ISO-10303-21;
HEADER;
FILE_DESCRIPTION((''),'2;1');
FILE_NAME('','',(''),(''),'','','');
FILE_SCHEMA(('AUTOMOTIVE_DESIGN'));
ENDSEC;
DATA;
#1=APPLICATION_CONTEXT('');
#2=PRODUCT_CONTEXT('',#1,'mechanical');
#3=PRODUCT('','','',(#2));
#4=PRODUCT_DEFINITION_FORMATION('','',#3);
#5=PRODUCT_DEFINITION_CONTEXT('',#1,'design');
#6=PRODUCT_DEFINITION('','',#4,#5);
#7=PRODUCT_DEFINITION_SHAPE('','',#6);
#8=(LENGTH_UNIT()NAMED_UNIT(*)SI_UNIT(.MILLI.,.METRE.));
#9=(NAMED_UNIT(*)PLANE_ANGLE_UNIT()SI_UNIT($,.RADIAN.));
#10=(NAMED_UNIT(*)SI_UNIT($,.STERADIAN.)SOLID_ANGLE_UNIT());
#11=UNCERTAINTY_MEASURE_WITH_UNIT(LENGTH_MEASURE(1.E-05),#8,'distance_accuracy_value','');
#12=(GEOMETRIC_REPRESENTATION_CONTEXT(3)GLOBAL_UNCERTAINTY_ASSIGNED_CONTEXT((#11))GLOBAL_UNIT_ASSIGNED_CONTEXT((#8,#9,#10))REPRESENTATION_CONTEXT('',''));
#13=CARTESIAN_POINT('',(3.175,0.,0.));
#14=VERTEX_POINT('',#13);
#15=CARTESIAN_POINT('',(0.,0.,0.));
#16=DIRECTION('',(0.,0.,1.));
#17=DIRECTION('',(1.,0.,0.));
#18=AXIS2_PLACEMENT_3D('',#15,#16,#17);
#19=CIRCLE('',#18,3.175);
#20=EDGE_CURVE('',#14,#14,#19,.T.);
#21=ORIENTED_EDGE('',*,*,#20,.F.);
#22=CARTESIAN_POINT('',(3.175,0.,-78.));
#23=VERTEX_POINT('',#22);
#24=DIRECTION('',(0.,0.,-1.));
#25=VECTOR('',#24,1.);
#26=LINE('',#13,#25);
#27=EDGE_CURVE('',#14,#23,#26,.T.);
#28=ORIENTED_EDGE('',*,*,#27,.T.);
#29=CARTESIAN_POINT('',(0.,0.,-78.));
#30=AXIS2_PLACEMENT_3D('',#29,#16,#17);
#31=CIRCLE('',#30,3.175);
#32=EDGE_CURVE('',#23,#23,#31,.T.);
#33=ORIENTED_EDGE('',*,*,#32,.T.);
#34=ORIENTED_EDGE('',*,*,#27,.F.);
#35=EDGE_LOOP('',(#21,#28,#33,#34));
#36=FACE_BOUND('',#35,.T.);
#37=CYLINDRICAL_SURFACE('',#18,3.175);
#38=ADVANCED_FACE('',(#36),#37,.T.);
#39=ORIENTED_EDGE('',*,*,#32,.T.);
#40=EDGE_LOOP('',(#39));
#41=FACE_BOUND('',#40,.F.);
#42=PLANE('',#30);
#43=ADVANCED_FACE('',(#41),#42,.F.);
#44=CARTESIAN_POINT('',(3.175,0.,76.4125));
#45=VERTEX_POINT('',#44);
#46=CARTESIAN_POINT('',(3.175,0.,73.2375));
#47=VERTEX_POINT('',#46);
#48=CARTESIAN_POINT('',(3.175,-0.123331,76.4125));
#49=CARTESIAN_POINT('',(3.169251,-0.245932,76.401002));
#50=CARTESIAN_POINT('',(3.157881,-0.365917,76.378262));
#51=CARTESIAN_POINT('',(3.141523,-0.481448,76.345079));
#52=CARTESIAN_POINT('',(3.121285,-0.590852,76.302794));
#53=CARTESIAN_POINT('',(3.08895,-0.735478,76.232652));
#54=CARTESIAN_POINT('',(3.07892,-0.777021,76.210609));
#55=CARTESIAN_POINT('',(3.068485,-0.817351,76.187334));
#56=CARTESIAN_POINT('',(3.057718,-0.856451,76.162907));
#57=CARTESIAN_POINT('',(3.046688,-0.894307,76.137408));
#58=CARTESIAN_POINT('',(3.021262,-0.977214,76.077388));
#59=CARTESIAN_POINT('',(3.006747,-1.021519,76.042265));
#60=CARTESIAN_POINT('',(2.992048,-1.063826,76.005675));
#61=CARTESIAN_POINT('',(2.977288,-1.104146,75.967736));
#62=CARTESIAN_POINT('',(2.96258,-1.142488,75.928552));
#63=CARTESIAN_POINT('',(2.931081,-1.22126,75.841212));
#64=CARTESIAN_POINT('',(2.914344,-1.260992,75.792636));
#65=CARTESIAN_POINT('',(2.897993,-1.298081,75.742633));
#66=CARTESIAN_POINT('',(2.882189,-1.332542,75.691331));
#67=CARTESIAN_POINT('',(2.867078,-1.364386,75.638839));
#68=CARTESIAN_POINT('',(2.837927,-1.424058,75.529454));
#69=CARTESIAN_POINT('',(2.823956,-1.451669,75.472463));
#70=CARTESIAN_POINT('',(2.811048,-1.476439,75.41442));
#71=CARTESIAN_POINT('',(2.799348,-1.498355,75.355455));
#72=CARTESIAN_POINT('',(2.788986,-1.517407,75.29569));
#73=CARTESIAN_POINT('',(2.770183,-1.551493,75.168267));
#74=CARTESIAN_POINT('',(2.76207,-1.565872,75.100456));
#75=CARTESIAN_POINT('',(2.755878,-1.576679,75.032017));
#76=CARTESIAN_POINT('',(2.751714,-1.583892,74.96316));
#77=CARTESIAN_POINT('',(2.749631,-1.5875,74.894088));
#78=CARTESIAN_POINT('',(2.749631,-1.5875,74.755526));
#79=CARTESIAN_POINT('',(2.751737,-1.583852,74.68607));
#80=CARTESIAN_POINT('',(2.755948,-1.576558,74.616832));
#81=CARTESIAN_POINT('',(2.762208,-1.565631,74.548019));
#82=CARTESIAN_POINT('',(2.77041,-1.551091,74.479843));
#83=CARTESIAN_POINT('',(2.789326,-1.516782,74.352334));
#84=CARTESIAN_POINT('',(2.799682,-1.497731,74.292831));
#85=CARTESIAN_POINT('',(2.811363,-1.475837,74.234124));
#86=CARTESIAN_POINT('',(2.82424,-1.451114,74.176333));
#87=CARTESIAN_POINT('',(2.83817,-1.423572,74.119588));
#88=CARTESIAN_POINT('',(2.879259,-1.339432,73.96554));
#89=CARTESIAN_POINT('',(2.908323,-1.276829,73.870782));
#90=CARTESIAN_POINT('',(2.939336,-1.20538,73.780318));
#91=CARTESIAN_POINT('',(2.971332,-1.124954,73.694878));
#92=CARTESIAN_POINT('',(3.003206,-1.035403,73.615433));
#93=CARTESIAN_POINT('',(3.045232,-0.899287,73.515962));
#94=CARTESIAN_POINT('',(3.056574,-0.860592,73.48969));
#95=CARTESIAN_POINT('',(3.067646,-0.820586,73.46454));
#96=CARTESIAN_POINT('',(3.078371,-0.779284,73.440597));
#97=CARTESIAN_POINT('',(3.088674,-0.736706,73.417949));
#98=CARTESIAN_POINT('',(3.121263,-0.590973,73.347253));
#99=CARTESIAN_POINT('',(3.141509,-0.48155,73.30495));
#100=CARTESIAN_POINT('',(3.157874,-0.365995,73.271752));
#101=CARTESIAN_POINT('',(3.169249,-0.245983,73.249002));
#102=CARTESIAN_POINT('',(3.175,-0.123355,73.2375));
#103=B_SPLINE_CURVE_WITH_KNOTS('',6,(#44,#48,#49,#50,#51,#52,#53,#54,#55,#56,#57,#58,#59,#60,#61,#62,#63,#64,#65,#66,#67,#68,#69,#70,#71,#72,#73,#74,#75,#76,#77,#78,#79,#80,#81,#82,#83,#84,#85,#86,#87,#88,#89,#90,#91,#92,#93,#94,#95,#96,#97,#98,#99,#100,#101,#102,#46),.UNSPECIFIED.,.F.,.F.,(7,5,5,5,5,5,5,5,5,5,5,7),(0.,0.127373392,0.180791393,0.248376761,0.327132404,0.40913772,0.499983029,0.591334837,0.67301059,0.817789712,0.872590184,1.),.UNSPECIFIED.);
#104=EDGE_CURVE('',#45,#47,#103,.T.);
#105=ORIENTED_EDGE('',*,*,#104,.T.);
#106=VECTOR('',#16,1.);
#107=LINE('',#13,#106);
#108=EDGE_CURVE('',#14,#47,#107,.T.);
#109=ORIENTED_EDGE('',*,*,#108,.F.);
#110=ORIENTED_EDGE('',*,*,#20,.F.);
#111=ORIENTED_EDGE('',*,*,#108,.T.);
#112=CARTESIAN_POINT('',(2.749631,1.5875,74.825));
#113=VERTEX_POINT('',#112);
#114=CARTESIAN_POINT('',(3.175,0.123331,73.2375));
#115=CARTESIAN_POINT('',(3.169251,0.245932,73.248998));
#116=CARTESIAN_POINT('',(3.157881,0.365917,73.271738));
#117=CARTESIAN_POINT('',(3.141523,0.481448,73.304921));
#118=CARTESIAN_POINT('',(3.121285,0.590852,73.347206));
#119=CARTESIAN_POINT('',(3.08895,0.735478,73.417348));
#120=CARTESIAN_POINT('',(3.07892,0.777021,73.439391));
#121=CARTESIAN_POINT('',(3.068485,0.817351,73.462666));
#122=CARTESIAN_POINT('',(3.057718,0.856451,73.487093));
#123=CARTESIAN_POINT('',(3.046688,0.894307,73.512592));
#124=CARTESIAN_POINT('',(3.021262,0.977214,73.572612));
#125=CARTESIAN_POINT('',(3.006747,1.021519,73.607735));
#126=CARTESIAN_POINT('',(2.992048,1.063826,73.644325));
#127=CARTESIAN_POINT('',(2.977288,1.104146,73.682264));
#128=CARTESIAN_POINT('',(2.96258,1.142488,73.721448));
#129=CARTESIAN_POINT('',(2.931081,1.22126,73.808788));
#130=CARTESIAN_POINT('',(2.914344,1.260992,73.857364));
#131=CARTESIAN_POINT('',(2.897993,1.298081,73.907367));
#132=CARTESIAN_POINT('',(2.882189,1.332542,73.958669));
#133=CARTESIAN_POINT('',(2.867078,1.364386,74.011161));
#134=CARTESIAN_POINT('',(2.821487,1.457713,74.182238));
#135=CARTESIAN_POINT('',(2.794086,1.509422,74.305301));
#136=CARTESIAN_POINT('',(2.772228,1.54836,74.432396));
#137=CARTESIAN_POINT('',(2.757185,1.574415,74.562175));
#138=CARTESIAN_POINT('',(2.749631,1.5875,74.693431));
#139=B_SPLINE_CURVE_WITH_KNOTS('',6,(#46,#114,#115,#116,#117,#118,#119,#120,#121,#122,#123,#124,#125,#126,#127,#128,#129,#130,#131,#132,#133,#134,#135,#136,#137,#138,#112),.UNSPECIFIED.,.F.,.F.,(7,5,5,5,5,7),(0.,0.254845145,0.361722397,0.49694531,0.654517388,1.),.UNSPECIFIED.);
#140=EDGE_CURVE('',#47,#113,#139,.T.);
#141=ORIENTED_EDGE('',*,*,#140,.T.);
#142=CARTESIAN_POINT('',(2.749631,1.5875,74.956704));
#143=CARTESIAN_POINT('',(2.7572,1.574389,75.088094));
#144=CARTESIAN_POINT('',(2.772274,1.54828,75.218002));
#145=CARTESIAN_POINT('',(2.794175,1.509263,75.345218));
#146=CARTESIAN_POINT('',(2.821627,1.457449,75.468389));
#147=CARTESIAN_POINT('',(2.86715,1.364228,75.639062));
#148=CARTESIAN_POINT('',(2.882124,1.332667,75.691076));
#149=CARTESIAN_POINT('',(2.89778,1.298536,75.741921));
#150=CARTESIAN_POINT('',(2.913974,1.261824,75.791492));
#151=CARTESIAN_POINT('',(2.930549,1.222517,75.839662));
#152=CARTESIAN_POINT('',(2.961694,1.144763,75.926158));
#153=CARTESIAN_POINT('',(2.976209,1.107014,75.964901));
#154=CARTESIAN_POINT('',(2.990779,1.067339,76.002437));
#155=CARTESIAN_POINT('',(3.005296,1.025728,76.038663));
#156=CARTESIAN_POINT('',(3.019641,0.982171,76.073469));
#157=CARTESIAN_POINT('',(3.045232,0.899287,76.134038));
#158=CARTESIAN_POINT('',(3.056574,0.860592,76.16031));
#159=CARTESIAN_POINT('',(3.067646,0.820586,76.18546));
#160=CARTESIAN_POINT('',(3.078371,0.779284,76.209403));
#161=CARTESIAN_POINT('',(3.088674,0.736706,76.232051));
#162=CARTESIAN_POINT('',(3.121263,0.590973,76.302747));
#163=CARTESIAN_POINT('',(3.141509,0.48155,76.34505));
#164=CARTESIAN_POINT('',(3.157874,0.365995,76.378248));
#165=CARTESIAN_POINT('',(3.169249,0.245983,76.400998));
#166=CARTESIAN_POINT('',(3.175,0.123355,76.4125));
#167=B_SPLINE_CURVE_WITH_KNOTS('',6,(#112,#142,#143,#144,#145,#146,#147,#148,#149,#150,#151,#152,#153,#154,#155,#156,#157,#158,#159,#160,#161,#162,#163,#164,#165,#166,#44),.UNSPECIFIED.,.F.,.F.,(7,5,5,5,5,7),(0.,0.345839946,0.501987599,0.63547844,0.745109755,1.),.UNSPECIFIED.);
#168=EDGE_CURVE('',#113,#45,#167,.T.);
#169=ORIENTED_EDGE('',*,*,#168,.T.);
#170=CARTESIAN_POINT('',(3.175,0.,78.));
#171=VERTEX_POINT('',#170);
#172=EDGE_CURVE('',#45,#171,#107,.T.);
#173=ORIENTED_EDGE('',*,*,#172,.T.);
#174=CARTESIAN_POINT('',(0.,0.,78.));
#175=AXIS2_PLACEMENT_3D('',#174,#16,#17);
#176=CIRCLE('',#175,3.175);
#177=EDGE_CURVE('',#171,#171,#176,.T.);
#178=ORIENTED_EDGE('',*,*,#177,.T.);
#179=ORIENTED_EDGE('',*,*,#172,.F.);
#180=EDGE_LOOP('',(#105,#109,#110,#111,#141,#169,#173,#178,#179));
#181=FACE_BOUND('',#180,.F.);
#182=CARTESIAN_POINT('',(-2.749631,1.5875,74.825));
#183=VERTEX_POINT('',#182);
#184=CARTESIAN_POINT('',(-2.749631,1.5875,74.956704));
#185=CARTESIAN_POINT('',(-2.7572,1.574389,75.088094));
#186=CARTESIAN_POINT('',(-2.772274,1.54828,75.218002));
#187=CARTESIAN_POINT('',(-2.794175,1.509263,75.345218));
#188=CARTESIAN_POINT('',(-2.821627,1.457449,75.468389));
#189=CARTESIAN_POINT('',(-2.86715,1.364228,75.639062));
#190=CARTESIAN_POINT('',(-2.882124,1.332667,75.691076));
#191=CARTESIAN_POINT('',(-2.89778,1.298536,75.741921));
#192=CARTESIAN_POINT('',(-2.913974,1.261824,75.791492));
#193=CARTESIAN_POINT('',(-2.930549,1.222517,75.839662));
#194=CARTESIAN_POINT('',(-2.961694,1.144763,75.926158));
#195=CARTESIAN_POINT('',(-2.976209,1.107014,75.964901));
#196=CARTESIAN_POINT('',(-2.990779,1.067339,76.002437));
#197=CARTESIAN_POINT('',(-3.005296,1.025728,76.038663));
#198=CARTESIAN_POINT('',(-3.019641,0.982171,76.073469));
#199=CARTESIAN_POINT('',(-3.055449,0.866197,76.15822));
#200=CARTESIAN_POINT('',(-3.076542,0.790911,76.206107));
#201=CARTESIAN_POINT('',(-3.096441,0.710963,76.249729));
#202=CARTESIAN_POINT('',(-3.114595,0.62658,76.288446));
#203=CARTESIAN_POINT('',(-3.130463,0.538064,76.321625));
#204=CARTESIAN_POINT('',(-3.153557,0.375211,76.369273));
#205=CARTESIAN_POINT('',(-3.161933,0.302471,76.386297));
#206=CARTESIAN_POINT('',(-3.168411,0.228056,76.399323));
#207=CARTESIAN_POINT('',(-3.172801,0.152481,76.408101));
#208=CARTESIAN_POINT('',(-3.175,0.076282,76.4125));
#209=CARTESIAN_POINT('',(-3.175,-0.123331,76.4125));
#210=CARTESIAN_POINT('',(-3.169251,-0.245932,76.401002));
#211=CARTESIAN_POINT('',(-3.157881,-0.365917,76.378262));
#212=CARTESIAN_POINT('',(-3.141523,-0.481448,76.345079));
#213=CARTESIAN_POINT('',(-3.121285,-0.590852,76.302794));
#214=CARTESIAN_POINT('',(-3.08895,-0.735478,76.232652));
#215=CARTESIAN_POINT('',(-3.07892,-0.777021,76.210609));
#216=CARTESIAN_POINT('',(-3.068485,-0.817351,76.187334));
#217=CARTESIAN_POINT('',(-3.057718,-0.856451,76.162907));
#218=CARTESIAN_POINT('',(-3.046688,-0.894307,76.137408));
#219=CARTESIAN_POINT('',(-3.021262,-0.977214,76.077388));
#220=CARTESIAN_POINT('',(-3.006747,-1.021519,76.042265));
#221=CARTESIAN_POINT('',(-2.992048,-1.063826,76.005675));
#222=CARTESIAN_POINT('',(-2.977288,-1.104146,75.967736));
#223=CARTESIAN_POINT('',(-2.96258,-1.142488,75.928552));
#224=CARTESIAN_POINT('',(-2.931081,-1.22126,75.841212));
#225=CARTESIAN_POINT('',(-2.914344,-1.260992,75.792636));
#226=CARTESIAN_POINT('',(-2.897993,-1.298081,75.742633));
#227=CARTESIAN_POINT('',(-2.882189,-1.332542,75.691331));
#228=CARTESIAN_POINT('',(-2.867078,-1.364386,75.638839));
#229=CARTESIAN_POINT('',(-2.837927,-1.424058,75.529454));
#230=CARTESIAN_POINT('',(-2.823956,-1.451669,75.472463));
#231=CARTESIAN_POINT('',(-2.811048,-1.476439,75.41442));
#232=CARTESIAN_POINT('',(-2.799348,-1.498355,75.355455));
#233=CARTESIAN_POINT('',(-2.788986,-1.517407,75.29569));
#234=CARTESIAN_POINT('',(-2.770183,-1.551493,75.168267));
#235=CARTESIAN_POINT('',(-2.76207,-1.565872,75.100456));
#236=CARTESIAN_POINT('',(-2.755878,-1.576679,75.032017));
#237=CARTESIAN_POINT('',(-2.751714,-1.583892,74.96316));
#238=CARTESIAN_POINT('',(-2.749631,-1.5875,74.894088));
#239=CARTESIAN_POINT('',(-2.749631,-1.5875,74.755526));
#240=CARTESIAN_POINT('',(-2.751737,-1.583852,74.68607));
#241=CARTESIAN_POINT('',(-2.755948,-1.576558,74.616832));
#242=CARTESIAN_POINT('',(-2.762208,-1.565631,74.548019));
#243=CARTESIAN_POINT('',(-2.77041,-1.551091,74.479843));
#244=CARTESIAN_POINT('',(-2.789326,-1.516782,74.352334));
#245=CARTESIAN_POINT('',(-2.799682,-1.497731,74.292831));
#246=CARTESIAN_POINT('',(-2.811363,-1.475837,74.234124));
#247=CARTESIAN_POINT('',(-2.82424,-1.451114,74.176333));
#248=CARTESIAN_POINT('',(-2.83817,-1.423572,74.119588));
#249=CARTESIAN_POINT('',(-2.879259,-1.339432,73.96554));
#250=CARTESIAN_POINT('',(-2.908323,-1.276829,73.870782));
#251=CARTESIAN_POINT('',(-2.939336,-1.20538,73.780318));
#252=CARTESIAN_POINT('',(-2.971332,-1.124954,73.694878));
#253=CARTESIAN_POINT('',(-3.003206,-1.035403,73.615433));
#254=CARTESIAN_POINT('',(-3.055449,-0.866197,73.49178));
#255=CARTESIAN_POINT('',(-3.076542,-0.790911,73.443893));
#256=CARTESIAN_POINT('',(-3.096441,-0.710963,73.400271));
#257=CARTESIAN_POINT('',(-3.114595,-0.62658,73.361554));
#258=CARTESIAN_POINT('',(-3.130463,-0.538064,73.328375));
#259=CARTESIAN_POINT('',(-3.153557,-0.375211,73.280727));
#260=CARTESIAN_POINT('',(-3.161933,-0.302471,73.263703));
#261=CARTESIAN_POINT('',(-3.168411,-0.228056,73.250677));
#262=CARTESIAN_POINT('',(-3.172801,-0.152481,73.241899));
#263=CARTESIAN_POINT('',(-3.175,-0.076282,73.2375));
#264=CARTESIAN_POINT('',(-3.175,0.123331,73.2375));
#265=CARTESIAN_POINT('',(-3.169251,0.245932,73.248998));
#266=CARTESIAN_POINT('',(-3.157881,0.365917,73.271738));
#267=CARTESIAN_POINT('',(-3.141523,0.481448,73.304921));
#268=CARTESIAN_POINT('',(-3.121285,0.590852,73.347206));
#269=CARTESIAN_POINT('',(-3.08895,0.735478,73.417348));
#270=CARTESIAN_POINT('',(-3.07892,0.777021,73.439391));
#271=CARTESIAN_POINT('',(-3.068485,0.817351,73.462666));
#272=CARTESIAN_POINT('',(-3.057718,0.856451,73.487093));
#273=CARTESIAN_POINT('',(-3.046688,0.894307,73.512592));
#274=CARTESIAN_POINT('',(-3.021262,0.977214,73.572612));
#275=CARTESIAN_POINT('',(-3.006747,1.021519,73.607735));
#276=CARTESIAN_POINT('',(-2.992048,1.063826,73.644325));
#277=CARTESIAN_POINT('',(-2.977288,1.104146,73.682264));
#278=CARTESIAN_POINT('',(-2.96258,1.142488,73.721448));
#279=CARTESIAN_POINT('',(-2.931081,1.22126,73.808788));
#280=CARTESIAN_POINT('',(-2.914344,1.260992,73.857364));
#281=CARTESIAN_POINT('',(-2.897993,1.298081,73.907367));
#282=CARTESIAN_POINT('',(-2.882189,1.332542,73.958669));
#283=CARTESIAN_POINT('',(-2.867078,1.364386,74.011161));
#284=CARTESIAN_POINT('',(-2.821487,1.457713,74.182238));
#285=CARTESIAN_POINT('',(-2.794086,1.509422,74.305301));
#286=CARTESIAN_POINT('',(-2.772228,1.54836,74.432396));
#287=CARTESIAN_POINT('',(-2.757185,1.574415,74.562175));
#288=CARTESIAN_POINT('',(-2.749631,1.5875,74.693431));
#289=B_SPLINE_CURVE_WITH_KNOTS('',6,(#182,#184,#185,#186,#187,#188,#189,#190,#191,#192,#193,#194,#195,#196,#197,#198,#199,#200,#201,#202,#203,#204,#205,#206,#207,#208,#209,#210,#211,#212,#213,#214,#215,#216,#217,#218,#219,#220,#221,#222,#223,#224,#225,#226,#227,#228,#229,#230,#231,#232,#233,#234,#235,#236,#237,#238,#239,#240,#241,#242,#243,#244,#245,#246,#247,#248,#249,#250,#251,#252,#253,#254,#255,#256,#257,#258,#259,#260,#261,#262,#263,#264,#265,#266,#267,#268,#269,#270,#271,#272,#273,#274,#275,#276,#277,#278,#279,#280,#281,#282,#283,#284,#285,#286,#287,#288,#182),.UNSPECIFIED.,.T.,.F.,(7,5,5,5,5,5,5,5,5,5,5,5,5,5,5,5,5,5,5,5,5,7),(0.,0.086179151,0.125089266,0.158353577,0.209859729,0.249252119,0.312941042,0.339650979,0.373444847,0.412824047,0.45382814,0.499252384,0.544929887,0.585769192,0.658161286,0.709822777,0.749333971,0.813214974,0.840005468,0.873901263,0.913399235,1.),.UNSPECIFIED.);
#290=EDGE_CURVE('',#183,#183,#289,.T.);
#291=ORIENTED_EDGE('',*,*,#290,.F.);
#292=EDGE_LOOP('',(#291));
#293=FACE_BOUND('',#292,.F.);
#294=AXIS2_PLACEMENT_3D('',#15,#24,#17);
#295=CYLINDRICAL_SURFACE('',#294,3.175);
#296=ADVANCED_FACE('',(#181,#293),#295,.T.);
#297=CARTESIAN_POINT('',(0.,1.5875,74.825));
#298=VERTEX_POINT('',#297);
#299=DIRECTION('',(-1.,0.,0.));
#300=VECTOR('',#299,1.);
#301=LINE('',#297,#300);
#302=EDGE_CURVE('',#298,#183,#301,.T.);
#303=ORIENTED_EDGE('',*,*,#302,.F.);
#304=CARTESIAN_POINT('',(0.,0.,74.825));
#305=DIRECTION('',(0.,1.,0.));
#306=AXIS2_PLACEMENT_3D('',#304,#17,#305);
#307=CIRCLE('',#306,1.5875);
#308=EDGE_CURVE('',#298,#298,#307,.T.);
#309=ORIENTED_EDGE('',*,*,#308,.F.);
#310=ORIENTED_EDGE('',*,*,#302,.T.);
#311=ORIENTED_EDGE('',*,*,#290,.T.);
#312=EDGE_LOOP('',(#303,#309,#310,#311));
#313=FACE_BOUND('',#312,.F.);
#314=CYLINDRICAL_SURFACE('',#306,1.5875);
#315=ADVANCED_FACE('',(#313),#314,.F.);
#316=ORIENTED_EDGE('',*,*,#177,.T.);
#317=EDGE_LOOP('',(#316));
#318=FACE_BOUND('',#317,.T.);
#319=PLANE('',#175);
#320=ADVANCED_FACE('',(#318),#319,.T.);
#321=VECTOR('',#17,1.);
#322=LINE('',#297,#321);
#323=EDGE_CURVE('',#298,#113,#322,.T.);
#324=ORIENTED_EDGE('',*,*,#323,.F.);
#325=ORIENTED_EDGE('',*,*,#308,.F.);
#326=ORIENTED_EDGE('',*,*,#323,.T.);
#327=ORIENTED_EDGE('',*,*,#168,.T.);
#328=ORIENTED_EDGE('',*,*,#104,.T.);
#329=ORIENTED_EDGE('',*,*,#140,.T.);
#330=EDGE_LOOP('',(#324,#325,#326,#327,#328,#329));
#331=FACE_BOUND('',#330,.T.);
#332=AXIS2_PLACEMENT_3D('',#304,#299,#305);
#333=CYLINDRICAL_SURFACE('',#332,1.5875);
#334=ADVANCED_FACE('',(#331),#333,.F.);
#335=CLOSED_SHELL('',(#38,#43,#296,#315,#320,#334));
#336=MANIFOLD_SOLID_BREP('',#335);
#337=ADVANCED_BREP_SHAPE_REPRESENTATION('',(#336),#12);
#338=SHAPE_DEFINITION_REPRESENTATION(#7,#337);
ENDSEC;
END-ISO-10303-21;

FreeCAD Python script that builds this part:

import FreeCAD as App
import Part
import Sketcher
Q = App.Units.Quantity

doc = App.newDocument("Part")
params = doc.addObject("Spreadsheet::Sheet", "Params")
for row, (alias, value) in enumerate([
    ("sketch1_diameter", "0.25 in"),
    ("pad1_length", "156 mm"),
    ("sketch2_diameter", "0.125 in"),
], start=1):
    params.set(f"A{row}", alias)
    params.set(f"B{row}", "=" + value)
    params.setAlias(f"B{row}", alias)

body = doc.addObject("PartDesign::Body", "Body")

# Sketch on XY plane
sketch1 = body.newObject("Sketcher::SketchObject", "Sketch")
sketch1.AttachmentSupport = (doc.getObject("XY_Plane"), [""])
sketch1.MapMode = "FlatFace"
sketch1.addGeometry(Part.Circle(App.Vector(0, 0, 0), App.Vector(0, 0, 1), 3.175), False)
sketch1.addConstraint([
    Sketcher.Constraint("Coincident", 0, 3, -1, 1),
    Sketcher.Constraint("Diameter", 0, Q("0.25 in")),
])
sketch1.setExpression("Constraints[1]", "Params.sketch1_diameter")
pad1 = body.newObject("PartDesign::Pad", "Pad")
pad1.Profile = sketch1
pad1.setExpression("Length", "Params.pad1_length")
pad1.Midplane = True

# Sketch on YZ plane
sketch2 = body.newObject("Sketcher::SketchObject", "Sketch001")
sketch2.AttachmentSupport = (doc.getObject("YZ_Plane"), [""])
sketch2.MapMode = "FlatFace"
sketch2.addGeometry(Part.Circle(App.Vector(0, 74.825, 0), App.Vector(0, 0, 1), 1.5875), False)
sketch2.addConstraint([
    Sketcher.Constraint("PointOnObject", 0, 3, -2),
    Sketcher.Constraint("Diameter", 0, Q("0.125 in")),
    Sketcher.Constraint("DistanceY", -1, 1, 0, 3, 74.825),
])
sketch2.setExpression("Constraints[1]", "Params.sketch2_diameter")
pocket1 = body.newObject("PartDesign::Pocket", "Pocket")
pocket1.Profile = sketch2
pocket1.Type = "ThroughAll"
pocket1.Midplane = True

doc.recompute()
